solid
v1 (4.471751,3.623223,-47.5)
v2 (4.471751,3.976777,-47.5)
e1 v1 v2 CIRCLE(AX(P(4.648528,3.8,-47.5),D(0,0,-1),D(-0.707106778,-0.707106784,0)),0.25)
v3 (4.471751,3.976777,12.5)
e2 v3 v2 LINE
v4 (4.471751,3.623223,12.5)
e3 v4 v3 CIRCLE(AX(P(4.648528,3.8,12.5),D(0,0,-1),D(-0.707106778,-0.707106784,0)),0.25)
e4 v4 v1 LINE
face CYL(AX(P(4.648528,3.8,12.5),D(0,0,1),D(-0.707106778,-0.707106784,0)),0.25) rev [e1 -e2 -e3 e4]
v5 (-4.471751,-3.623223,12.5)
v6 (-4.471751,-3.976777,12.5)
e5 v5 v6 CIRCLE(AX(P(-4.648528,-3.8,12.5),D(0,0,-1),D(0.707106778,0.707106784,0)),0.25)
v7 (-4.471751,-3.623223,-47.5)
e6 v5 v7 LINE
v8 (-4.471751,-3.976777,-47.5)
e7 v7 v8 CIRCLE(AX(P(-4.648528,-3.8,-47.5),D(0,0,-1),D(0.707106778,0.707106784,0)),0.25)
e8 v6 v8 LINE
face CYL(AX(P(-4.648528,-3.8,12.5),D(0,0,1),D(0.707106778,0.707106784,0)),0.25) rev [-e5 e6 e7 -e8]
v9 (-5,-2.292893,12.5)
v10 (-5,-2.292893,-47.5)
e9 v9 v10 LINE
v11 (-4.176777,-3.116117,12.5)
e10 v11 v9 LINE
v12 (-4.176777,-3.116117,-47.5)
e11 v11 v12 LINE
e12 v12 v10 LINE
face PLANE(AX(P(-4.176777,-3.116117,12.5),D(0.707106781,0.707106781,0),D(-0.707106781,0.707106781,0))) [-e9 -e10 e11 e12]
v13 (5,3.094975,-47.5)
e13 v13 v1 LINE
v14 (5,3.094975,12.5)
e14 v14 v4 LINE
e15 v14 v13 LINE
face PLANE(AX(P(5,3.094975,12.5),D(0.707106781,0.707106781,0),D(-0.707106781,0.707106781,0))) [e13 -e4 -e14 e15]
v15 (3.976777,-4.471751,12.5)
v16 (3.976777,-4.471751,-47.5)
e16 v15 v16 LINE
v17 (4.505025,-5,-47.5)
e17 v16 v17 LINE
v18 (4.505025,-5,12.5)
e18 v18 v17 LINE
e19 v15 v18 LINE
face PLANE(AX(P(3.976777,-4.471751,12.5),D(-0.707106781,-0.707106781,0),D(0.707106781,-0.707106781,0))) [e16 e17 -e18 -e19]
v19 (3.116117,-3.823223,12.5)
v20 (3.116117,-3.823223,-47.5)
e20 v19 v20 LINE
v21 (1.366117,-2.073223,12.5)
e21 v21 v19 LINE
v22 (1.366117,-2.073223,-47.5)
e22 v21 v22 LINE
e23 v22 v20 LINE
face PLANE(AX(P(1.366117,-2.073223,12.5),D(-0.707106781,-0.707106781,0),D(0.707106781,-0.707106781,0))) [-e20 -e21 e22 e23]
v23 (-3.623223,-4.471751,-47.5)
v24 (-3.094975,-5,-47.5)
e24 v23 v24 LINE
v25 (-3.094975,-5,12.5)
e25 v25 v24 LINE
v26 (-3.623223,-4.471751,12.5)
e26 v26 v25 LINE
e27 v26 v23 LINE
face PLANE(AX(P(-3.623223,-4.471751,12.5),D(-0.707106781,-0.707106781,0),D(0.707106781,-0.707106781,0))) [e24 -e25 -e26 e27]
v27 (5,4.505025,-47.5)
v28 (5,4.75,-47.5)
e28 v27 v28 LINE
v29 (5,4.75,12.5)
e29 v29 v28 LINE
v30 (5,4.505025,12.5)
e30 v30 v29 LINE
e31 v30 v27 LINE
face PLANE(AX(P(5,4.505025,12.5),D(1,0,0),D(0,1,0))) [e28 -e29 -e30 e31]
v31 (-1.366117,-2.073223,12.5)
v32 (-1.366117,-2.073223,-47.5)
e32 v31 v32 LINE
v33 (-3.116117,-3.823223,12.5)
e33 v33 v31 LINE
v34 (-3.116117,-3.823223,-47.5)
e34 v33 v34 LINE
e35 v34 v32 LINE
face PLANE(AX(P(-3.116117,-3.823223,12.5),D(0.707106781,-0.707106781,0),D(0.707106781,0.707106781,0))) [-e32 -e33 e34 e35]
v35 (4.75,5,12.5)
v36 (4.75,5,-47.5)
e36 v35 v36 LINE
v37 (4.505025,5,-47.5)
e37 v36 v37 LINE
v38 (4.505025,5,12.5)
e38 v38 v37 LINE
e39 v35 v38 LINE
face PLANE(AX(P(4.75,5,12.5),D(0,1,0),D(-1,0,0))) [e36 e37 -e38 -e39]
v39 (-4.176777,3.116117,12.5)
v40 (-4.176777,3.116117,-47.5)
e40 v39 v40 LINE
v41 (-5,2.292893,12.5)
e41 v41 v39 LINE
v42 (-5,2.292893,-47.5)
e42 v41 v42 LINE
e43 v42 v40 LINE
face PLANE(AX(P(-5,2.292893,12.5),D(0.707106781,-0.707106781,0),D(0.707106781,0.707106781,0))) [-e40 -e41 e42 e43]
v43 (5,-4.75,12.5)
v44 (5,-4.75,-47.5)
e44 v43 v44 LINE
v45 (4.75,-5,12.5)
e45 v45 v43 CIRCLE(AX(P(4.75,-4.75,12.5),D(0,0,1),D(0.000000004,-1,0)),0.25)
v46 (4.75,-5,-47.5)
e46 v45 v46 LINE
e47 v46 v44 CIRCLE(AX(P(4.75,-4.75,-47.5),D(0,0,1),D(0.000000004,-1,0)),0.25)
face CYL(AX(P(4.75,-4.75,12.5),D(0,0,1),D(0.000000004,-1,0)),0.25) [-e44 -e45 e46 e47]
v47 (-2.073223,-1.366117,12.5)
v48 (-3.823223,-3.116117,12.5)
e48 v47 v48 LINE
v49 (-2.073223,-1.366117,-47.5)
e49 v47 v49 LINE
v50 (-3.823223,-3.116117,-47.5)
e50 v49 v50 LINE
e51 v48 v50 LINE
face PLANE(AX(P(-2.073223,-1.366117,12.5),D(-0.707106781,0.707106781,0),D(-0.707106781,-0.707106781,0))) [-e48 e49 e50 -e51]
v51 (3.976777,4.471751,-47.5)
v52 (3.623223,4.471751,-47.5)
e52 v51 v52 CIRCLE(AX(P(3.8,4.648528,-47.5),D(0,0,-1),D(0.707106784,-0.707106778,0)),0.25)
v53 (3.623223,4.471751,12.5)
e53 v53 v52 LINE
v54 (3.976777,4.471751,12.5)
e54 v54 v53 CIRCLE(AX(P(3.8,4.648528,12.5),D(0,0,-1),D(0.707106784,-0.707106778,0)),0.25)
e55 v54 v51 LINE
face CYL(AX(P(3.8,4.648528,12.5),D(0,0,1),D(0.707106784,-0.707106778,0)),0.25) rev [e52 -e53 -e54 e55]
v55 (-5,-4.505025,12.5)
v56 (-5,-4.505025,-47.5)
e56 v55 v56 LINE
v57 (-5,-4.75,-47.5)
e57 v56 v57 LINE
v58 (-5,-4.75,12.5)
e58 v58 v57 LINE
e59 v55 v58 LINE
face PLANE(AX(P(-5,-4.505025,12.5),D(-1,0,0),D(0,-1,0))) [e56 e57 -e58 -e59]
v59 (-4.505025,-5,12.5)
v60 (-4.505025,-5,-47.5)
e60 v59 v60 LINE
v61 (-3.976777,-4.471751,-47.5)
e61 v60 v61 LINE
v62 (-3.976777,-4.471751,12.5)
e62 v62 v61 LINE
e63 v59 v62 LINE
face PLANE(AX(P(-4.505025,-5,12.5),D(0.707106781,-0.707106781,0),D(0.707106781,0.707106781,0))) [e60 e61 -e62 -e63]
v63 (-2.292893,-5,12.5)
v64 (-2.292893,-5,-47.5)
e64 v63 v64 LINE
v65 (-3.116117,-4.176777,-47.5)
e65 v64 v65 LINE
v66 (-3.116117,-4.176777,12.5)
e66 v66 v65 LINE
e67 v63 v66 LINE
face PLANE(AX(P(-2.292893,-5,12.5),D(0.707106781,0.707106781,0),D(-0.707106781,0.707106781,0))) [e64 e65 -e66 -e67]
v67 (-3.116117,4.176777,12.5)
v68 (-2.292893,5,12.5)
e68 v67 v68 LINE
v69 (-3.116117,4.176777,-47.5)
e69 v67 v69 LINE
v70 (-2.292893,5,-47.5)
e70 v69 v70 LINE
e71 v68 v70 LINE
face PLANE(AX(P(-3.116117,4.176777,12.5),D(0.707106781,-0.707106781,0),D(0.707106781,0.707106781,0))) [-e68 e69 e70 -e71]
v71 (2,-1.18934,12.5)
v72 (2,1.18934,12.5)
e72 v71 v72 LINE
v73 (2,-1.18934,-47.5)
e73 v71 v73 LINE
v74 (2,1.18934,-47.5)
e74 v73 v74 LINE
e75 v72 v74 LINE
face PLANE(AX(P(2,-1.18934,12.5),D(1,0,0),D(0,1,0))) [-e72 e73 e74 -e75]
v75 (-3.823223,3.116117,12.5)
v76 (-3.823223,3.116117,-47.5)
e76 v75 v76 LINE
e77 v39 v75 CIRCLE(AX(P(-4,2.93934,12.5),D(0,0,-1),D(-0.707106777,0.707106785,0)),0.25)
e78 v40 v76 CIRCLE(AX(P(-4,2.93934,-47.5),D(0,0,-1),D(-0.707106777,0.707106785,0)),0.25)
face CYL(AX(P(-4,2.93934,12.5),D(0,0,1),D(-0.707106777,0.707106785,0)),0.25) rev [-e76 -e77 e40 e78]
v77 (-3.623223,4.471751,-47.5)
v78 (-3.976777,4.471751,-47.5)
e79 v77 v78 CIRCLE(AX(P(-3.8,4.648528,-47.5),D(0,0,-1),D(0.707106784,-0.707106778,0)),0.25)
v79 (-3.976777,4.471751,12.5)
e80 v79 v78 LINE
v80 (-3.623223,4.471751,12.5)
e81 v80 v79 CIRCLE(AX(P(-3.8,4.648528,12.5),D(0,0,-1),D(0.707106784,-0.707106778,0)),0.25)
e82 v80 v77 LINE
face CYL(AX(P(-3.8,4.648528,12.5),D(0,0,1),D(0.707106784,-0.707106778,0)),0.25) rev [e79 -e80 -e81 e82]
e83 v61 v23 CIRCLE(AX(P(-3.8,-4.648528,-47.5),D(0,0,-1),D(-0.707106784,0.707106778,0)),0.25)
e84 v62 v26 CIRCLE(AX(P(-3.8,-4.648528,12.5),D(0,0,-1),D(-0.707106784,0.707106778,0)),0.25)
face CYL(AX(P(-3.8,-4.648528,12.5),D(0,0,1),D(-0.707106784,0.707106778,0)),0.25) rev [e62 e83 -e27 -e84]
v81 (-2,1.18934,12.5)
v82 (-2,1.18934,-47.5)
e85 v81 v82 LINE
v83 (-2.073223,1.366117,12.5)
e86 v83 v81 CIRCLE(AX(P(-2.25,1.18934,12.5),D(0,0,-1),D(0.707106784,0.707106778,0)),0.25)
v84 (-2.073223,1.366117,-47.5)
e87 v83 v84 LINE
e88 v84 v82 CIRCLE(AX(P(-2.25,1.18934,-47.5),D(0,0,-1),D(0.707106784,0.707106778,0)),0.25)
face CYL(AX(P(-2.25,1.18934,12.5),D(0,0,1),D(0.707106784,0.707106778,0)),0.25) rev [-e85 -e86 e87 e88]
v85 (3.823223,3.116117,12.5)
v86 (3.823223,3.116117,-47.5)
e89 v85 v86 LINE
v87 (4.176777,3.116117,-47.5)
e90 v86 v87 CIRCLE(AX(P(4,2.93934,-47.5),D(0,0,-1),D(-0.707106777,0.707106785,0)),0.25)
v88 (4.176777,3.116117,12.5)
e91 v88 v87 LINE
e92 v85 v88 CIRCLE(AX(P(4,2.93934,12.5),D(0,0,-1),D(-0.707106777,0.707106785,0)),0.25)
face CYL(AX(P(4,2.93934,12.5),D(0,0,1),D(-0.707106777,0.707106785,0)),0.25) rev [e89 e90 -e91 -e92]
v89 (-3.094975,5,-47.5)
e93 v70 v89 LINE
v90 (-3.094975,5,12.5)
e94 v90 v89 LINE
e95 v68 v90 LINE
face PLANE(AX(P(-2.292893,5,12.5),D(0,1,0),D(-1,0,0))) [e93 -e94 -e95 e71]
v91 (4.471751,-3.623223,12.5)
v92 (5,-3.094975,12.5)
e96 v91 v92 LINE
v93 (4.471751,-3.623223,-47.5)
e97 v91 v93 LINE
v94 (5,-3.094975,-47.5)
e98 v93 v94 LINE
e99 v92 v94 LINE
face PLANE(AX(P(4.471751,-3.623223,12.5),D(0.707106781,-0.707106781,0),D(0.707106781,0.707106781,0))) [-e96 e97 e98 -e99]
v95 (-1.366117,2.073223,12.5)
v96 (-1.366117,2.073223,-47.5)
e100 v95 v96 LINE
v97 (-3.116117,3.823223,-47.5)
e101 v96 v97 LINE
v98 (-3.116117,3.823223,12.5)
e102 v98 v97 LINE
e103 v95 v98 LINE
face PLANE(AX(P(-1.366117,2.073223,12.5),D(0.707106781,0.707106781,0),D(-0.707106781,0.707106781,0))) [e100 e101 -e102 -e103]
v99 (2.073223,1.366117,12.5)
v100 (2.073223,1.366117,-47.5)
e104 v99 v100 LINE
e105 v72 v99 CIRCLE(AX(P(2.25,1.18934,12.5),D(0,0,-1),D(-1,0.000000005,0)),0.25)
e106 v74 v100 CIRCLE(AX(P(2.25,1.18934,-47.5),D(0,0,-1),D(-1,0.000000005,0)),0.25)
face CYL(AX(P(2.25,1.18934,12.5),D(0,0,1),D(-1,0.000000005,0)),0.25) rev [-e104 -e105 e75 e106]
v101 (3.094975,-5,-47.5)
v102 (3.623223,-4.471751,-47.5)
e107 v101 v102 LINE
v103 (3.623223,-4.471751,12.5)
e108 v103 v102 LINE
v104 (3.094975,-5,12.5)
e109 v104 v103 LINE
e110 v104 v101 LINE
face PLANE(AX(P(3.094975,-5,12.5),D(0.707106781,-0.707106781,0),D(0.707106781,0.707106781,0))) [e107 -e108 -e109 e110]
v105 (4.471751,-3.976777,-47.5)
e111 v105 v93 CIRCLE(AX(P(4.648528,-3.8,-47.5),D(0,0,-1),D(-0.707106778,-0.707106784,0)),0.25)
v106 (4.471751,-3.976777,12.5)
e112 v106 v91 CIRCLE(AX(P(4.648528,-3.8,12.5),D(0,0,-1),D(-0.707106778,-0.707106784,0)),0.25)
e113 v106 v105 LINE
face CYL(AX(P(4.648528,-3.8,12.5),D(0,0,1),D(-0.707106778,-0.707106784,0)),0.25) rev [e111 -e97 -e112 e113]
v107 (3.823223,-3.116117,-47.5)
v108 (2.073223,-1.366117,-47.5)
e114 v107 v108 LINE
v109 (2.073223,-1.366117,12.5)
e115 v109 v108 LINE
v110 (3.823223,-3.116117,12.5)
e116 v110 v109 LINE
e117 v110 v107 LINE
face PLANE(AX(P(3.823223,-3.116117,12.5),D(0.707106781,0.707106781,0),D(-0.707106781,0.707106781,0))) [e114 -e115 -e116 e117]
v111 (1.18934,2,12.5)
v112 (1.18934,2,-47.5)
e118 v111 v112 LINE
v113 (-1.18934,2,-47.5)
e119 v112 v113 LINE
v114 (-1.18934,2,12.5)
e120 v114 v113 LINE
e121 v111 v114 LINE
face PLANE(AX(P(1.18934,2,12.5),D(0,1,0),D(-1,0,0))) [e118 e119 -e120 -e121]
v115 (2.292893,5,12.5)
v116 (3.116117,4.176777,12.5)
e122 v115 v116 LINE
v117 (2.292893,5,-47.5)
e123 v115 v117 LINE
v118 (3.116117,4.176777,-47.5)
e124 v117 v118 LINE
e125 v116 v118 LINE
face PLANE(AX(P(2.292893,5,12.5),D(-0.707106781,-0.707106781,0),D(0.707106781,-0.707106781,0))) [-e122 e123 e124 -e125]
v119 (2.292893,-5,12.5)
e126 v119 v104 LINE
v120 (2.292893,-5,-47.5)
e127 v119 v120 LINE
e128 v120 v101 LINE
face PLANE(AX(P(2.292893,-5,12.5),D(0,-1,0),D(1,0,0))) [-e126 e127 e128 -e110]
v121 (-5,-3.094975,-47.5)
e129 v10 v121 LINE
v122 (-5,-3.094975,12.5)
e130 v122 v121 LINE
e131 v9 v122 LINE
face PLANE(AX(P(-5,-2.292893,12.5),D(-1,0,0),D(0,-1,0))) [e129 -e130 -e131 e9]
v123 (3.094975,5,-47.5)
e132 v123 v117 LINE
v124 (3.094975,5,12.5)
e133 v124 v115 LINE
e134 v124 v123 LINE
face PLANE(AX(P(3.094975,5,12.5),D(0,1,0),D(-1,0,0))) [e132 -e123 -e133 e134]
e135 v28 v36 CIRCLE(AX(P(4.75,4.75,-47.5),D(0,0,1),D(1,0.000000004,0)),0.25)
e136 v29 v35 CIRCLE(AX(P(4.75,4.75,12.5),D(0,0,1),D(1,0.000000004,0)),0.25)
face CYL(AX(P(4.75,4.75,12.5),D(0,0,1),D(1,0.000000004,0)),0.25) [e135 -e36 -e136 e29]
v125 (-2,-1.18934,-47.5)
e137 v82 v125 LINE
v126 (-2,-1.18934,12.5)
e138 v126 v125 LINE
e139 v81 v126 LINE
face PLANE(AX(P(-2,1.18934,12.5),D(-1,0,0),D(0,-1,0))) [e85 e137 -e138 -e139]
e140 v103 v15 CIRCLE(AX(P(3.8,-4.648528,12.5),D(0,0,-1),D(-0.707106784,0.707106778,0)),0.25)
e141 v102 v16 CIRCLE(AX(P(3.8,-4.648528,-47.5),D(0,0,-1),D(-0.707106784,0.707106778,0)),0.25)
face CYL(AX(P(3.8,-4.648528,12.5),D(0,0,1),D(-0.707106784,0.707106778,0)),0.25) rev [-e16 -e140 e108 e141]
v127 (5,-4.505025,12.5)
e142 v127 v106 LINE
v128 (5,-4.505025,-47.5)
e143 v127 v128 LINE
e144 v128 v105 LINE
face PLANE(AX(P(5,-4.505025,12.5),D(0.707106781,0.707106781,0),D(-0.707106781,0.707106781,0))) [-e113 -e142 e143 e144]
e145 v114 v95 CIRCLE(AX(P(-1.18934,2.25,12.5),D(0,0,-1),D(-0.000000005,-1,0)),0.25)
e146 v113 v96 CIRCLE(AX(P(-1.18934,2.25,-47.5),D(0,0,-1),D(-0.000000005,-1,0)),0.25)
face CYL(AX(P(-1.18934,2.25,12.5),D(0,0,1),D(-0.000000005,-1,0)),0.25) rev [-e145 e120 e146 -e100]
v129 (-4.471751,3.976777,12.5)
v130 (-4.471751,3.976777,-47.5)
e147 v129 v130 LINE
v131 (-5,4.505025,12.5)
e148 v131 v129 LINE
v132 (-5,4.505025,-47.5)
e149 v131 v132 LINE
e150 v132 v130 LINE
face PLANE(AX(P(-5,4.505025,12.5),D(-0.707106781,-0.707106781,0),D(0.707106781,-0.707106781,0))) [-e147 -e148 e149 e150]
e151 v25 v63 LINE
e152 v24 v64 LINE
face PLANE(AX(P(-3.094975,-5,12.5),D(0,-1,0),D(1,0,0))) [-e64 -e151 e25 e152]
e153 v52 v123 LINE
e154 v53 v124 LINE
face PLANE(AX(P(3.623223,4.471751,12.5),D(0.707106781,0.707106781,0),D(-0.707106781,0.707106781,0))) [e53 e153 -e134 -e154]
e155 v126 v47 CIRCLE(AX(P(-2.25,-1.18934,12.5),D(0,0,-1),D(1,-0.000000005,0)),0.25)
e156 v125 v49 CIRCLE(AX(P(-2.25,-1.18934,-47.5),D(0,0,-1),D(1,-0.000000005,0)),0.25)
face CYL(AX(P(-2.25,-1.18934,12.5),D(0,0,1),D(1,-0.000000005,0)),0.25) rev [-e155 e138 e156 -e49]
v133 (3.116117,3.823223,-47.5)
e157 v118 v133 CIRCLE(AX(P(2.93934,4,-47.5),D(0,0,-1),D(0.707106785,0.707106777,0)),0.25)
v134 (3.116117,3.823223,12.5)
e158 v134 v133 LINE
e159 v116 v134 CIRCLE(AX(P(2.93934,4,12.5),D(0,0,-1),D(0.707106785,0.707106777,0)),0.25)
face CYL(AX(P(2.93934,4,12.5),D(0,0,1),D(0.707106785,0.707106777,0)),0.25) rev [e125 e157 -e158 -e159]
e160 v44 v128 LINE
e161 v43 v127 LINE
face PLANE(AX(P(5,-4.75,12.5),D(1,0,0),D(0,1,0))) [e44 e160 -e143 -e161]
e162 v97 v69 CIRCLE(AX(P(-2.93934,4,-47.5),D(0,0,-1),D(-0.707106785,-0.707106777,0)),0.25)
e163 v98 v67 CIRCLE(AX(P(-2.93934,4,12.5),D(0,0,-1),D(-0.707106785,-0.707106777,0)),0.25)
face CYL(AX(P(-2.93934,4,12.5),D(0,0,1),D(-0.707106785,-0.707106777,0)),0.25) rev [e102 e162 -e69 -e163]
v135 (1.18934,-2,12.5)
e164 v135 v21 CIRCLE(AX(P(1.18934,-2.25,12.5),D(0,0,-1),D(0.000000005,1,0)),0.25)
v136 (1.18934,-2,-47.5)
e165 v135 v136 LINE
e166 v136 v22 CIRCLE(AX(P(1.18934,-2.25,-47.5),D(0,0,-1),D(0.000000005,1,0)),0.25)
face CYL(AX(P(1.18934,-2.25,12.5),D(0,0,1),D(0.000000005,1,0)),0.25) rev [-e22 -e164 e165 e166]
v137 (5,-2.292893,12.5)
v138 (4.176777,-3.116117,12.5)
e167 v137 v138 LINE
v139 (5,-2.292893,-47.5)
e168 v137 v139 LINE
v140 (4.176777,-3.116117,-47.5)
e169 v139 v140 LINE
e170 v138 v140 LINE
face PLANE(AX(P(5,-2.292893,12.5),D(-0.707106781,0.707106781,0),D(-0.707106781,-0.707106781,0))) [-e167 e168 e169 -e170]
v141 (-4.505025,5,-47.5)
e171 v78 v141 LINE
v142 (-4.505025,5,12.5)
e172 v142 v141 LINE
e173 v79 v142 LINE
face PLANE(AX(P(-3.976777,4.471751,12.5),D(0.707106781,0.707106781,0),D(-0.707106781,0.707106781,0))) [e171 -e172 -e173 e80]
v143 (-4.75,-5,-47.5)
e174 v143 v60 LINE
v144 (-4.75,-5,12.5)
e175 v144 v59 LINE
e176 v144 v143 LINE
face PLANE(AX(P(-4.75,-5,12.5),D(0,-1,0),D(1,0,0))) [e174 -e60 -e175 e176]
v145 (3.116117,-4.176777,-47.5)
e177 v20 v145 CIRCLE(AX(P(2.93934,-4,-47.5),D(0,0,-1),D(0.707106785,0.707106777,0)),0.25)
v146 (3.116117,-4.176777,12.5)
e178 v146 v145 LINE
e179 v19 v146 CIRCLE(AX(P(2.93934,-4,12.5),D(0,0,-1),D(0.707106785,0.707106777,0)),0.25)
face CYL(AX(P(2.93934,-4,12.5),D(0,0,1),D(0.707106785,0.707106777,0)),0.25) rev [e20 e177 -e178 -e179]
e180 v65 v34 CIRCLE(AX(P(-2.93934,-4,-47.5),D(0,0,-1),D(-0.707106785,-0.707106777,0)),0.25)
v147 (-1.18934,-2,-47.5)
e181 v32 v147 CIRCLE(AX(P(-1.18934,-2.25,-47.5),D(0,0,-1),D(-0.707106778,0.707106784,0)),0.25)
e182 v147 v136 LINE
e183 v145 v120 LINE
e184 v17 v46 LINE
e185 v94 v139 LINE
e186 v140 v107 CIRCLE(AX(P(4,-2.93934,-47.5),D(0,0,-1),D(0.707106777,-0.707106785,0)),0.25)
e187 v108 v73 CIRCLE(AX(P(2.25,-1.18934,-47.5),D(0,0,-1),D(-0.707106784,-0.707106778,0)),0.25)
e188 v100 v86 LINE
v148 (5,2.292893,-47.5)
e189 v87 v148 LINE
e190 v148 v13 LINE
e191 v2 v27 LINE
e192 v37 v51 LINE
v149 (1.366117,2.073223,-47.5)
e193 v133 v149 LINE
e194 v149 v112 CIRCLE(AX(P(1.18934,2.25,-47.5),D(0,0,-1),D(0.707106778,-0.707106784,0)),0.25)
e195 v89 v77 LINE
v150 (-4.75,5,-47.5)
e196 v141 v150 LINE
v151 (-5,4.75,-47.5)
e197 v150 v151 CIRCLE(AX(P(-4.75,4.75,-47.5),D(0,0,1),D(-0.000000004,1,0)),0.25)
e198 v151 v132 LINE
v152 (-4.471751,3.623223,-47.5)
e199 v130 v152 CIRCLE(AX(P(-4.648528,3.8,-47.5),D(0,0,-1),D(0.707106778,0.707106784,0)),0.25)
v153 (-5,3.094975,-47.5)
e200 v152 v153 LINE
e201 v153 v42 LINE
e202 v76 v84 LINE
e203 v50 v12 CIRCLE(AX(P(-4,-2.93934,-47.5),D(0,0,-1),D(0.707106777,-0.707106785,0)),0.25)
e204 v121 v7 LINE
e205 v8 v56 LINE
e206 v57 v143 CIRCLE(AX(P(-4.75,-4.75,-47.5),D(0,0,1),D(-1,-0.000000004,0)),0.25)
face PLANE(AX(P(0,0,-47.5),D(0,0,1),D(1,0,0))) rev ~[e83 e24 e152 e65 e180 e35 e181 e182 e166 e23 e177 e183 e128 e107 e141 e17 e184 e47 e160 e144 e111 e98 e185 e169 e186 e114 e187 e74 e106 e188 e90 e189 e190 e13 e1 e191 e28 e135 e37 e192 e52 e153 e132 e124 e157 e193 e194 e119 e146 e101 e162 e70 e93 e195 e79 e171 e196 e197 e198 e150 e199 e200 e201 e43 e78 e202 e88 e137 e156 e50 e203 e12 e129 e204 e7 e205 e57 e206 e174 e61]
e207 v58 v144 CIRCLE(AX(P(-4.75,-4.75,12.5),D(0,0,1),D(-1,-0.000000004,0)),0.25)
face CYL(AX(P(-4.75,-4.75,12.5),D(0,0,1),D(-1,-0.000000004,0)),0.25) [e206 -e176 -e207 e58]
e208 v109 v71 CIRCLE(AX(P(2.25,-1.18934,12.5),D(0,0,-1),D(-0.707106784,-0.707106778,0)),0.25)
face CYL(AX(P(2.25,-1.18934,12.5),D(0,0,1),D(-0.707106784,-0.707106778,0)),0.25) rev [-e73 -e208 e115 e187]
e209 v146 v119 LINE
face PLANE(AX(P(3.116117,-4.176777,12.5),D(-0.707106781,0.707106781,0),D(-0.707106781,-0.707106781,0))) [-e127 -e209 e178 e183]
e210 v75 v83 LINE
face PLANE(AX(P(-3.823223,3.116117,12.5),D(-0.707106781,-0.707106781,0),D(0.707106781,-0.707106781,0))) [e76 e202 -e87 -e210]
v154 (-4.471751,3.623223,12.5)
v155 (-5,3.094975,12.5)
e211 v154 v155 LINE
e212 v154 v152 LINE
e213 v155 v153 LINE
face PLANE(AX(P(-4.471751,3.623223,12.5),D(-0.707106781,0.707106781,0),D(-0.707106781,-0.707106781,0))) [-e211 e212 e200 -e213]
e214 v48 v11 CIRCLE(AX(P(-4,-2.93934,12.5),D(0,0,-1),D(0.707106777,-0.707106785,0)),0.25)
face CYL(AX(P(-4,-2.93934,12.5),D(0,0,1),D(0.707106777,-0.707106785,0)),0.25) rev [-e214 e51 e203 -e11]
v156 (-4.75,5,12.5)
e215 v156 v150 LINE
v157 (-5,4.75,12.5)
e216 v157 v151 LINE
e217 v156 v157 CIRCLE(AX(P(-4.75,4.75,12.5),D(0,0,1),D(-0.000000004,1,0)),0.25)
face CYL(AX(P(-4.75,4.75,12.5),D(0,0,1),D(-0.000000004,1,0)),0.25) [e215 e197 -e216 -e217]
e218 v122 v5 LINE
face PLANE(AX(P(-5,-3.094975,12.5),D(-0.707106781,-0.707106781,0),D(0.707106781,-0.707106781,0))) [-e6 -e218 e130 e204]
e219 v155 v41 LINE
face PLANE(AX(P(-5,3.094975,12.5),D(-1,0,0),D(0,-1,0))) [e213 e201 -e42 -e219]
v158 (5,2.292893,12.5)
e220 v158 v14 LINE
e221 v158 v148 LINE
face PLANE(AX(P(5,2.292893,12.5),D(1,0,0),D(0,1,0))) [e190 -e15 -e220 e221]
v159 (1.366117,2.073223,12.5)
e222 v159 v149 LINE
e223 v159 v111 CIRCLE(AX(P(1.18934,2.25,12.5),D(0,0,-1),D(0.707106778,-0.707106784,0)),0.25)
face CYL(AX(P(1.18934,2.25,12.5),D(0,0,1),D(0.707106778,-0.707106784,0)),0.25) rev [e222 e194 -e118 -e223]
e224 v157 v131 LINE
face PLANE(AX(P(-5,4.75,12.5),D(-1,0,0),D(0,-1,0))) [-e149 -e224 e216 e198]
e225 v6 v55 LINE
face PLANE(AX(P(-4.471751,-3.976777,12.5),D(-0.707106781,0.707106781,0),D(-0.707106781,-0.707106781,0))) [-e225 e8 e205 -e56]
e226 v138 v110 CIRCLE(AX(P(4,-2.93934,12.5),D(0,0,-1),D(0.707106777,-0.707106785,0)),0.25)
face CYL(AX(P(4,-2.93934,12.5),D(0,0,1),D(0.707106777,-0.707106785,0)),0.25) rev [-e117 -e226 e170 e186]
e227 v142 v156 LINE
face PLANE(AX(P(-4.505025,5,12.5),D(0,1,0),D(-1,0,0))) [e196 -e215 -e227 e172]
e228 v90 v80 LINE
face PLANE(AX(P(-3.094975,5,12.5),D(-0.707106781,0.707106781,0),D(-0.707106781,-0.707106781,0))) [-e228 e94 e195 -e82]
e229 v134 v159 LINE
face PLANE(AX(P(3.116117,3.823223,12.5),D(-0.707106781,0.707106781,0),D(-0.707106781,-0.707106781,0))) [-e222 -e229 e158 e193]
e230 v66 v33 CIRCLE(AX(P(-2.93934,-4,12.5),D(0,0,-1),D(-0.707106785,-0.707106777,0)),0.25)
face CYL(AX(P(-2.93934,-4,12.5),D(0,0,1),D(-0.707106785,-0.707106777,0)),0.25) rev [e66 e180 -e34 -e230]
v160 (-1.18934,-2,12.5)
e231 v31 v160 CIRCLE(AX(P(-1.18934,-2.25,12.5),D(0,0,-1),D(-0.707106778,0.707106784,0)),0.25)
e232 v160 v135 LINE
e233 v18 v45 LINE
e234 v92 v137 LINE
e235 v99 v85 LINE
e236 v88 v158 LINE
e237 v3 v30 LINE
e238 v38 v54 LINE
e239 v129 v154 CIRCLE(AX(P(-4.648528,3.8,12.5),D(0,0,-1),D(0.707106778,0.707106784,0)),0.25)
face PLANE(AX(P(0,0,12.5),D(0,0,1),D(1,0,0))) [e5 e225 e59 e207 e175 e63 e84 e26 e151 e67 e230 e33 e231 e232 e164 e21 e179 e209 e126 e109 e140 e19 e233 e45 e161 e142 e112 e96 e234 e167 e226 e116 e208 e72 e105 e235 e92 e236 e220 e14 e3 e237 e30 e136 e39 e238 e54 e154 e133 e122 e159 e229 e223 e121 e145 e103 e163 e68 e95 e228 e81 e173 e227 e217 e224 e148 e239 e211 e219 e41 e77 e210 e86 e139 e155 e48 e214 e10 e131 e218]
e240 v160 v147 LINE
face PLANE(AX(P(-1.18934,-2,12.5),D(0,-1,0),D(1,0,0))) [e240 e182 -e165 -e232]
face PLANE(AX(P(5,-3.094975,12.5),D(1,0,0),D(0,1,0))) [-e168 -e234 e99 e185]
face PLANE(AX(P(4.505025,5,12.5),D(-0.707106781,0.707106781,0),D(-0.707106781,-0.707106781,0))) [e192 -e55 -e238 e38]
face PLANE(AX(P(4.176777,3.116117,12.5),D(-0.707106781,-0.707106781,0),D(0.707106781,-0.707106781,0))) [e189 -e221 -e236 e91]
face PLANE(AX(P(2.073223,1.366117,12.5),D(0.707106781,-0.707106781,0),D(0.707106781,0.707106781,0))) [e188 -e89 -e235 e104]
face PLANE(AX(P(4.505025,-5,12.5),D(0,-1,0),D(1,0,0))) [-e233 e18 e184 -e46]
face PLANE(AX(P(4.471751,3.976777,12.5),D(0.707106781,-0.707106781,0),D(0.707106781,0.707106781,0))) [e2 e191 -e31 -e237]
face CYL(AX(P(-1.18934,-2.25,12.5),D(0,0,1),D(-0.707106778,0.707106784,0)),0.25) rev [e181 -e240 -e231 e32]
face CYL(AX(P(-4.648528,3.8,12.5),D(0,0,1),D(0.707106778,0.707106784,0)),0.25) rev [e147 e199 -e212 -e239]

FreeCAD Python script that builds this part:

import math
import FreeCAD as App
import Part
import Sketcher
from FreeCAD import Vector
Q = App.Units.Quantity

doc = App.newDocument("Part")
body = doc.addObject("PartDesign::Body", "Body")

sketch1 = doc.addObject("Sketcher::SketchObject", "Sketch")
body.addObject(sketch1)
sketch1.AttachmentSupport = (doc.XY_Plane, [""])
sketch1.MapMode = "FlatFace"
sketch1.AttachmentOffset = App.Placement(Vector(0, 0, 12.5), App.Rotation())
sketch1.addGeometry(Part.LineSegment(Vector(1.18934, 2, 0), Vector(-1.18934, 2, 0)), False)
sketch1.addGeometry(Part.ArcOfCircle(Part.Circle(Vector(-1.18934, 2.25, 0), Vector(0, 0, 1), 0.25), math.radians(-135), math.radians(-90)), False)
sketch1.addGeometry(Part.LineSegment(Vector(-1.366117, 2.073223, 0), Vector(-3.116117, 3.823223, 0)), False)
sketch1.addGeometry(Part.ArcOfCircle(Part.Circle(Vector(-2.93934, 4, 0), Vector(0, 0, 1), 0.25), math.radians(135), math.radians(225)), False)
sketch1.addGeometry(Part.LineSegment(Vector(-3.116117, 4.176777, 0), Vector(-2.292893, 5, 0)), False)
sketch1.addGeometry(Part.LineSegment(Vector(-2.292893, 5, 0), Vector(-3.094975, 5, 0)), False)
sketch1.addGeometry(Part.LineSegment(Vector(-3.094975, 5, 0), Vector(-3.623223, 4.471751, 0)), False)
sketch1.addGeometry(Part.ArcOfCircle(Part.Circle(Vector(-3.8, 4.648528, 0), Vector(0, 0, 1), 0.25), math.radians(-135), math.radians(-45)), False)
sketch1.addGeometry(Part.LineSegment(Vector(-3.976777, 4.471751, 0), Vector(-4.505025, 5, 0)), False)
sketch1.addGeometry(Part.LineSegment(Vector(-4.505025, 5, 0), Vector(-4.75, 5, 0)), False)
sketch1.addGeometry(Part.ArcOfCircle(Part.Circle(Vector(-4.75, 4.75, 0), Vector(0, 0, 1), 0.25), math.radians(90), math.radians(180)), False)
sketch1.addGeometry(Part.LineSegment(Vector(-5, 4.75, 0), Vector(-5, 4.505025, 0)), False)
sketch1.addGeometry(Part.LineSegment(Vector(-5, 4.505025, 0), Vector(-4.471751, 3.976777, 0)), False)
sketch1.addGeometry(Part.ArcOfCircle(Part.Circle(Vector(-4.648528, 3.8, 0), Vector(0, 0, 1), 0.25), math.radians(-45), math.radians(45)), False)
sketch1.addGeometry(Part.LineSegment(Vector(-4.471751, 3.623223, 0), Vector(-5, 3.094975, 0)), False)
sketch1.addGeometry(Part.LineSegment(Vector(-5, 3.094975, 0), Vector(-5, 2.292893, 0)), False)
sketch1.addGeometry(Part.LineSegment(Vector(-5, 2.292893, 0), Vector(-4.176777, 3.116117, 0)), False)
sketch1.addGeometry(Part.ArcOfCircle(Part.Circle(Vector(-4, 2.93934, 0), Vector(0, 0, 1), 0.25), math.radians(45), math.radians(135)), False)
sketch1.addGeometry(Part.LineSegment(Vector(-3.823223, 3.116117, 0), Vector(-2.073223, 1.366117, 0)), False)
sketch1.addGeometry(Part.ArcOfCircle(Part.Circle(Vector(-2.25, 1.18934, 0), Vector(0, 0, 1), 0.25), math.radians(0), math.radians(45)), False)
sketch1.addGeometry(Part.LineSegment(Vector(-2, 1.18934, 0), Vector(-2, -1.18934, 0)), False)
sketch1.addGeometry(Part.ArcOfCircle(Part.Circle(Vector(-2.25, -1.18934, 0), Vector(0, 0, 1), 0.25), math.radians(-45), math.radians(0)), False)
sketch1.addGeometry(Part.LineSegment(Vector(-2.073223, -1.366117, 0), Vector(-3.823223, -3.116117, 0)), False)
sketch1.addGeometry(Part.ArcOfCircle(Part.Circle(Vector(-4, -2.93934, 0), Vector(0, 0, 1), 0.25), math.radians(-135), math.radians(-45)), False)
sketch1.addGeometry(Part.LineSegment(Vector(-4.176777, -3.116117, 0), Vector(-5, -2.292893, 0)), False)
sketch1.addGeometry(Part.LineSegment(Vector(-5, -2.292893, 0), Vector(-5, -3.094975, 0)), False)
sketch1.addGeometry(Part.LineSegment(Vector(-5, -3.094975, 0), Vector(-4.471751, -3.623223, 0)), False)
sketch1.addGeometry(Part.ArcOfCircle(Part.Circle(Vector(-4.648528, -3.8, 0), Vector(0, 0, 1), 0.25), math.radians(-45), math.radians(45)), False)
sketch1.addGeometry(Part.LineSegment(Vector(-4.471751, -3.976777, 0), Vector(-5, -4.505025, 0)), False)
sketch1.addGeometry(Part.LineSegment(Vector(-5, -4.505025, 0), Vector(-5, -4.75, 0)), False)
sketch1.addGeometry(Part.ArcOfCircle(Part.Circle(Vector(-4.75, -4.75, 0), Vector(0, 0, 1), 0.25), math.radians(-180), math.radians(-90)), False)
sketch1.addGeometry(Part.LineSegment(Vector(-4.75, -5, 0), Vector(-4.505025, -5, 0)), False)
sketch1.addGeometry(Part.LineSegment(Vector(-4.505025, -5, 0), Vector(-3.976777, -4.471751, 0)), False)
sketch1.addGeometry(Part.ArcOfCircle(Part.Circle(Vector(-3.8, -4.648528, 0), Vector(0, 0, 1), 0.25), math.radians(45), math.radians(135)), False)
sketch1.addGeometry(Part.LineSegment(Vector(-3.623223, -4.471751, 0), Vector(-3.094975, -5, 0)), False)
sketch1.addGeometry(Part.LineSegment(Vector(-3.094975, -5, 0), Vector(-2.292893, -5, 0)), False)
sketch1.addGeometry(Part.LineSegment(Vector(-2.292893, -5, 0), Vector(-3.116117, -4.176777, 0)), False)
sketch1.addGeometry(Part.ArcOfCircle(Part.Circle(Vector(-2.93934, -4, 0), Vector(0, 0, 1), 0.25), math.radians(135), math.radians(225)), False)
sketch1.addGeometry(Part.LineSegment(Vector(-3.116117, -3.823223, 0), Vector(-1.366117, -2.073223, 0)), False)
sketch1.addGeometry(Part.ArcOfCircle(Part.Circle(Vector(-1.18934, -2.25, 0), Vector(0, 0, 1), 0.25), math.radians(90), math.radians(135)), False)
sketch1.addGeometry(Part.LineSegment(Vector(-1.18934, -2, 0), Vector(1.18934, -2, 0)), False)
sketch1.addGeometry(Part.ArcOfCircle(Part.Circle(Vector(1.18934, -2.25, 0), Vector(0, 0, 1), 0.25), math.radians(45), math.radians(90)), False)
sketch1.addGeometry(Part.LineSegment(Vector(1.366117, -2.073223, 0), Vector(3.116117, -3.823223, 0)), False)
sketch1.addGeometry(Part.ArcOfCircle(Part.Circle(Vector(2.93934, -4, 0), Vector(0, 0, 1), 0.25), math.radians(-45), math.radians(45)), False)
sketch1.addGeometry(Part.LineSegment(Vector(3.116117, -4.176777, 0), Vector(2.292893, -5, 0)), False)
sketch1.addGeometry(Part.LineSegment(Vector(2.292893, -5, 0), Vector(3.094975, -5, 0)), False)
sketch1.addGeometry(Part.LineSegment(Vector(3.094975, -5, 0), Vector(3.623223, -4.471751, 0)), False)
sketch1.addGeometry(Part.ArcOfCircle(Part.Circle(Vector(3.8, -4.648528, 0), Vector(0, 0, 1), 0.25), math.radians(45), math.radians(135)), False)
sketch1.addGeometry(Part.LineSegment(Vector(3.976777, -4.471751, 0), Vector(4.505025, -5, 0)), False)
sketch1.addGeometry(Part.LineSegment(Vector(4.505025, -5, 0), Vector(4.75, -5, 0)), False)
sketch1.addGeometry(Part.ArcOfCircle(Part.Circle(Vector(4.75, -4.75, 0), Vector(0, 0, 1), 0.25), math.radians(-90), math.radians(0)), False)
sketch1.addGeometry(Part.LineSegment(Vector(5, -4.75, 0), Vector(5, -4.505025, 0)), False)
sketch1.addGeometry(Part.LineSegment(Vector(5, -4.505025, 0), Vector(4.471751, -3.976777, 0)), False)
sketch1.addGeometry(Part.ArcOfCircle(Part.Circle(Vector(4.648528, -3.8, 0), Vector(0, 0, 1), 0.25), math.radians(135), math.radians(225)), False)
sketch1.addGeometry(Part.LineSegment(Vector(4.471751, -3.623223, 0), Vector(5, -3.094975, 0)), False)
sketch1.addGeometry(Part.LineSegment(Vector(5, -3.094975, 0), Vector(5, -2.292893, 0)), False)
sketch1.addGeometry(Part.LineSegment(Vector(5, -2.292893, 0), Vector(4.176777, -3.116117, 0)), False)
sketch1.addGeometry(Part.ArcOfCircle(Part.Circle(Vector(4, -2.93934, 0), Vector(0, 0, 1), 0.25), math.radians(-135), math.radians(-45)), False)
sketch1.addGeometry(Part.LineSegment(Vector(3.823223, -3.116117, 0), Vector(2.073223, -1.366117, 0)), False)
sketch1.addGeometry(Part.ArcOfCircle(Part.Circle(Vector(2.25, -1.18934, 0), Vector(0, 0, 1), 0.25), math.radians(-180), math.radians(-135)), False)
sketch1.addGeometry(Part.LineSegment(Vector(2, -1.18934, 0), Vector(2, 1.18934, 0)), False)
sketch1.addGeometry(Part.ArcOfCircle(Part.Circle(Vector(2.25, 1.18934, 0), Vector(0, 0, 1), 0.25), math.radians(135), math.radians(180)), False)
sketch1.addGeometry(Part.LineSegment(Vector(2.073223, 1.366117, 0), Vector(3.823223, 3.116117, 0)), False)
sketch1.addGeometry(Part.ArcOfCircle(Part.Circle(Vector(4, 2.93934, 0), Vector(0, 0, 1), 0.25), math.radians(45), math.radians(135)), False)
sketch1.addGeometry(Part.LineSegment(Vector(4.176777, 3.116117, 0), Vector(5, 2.292893, 0)), False)
sketch1.addGeometry(Part.LineSegment(Vector(5, 2.292893, 0), Vector(5, 3.094975, 0)), False)
sketch1.addGeometry(Part.LineSegment(Vector(5, 3.094975, 0), Vector(4.471751, 3.623223, 0)), False)
sketch1.addGeometry(Part.ArcOfCircle(Part.Circle(Vector(4.648528, 3.8, 0), Vector(0, 0, 1), 0.25), math.radians(135), math.radians(225)), False)
sketch1.addGeometry(Part.LineSegment(Vector(4.471751, 3.976777, 0), Vector(5, 4.505025, 0)), False)
sketch1.addGeometry(Part.LineSegment(Vector(5, 4.505025, 0), Vector(5, 4.75, 0)), False)
sketch1.addGeometry(Part.ArcOfCircle(Part.Circle(Vector(4.75, 4.75, 0), Vector(0, 0, 1), 0.25), math.radians(0), math.radians(90)), False)
sketch1.addGeometry(Part.LineSegment(Vector(4.75, 5, 0), Vector(4.505025, 5, 0)), False)
sketch1.addGeometry(Part.LineSegment(Vector(4.505025, 5, 0), Vector(3.976777, 4.471751, 0)), False)
sketch1.addGeometry(Part.ArcOfCircle(Part.Circle(Vector(3.8, 4.648528, 0), Vector(0, 0, 1), 0.25), math.radians(-135), math.radians(-45)), False)
sketch1.addGeometry(Part.LineSegment(Vector(3.623223, 4.471751, 0), Vector(3.094975, 5, 0)), False)
sketch1.addGeometry(Part.LineSegment(Vector(3.094975, 5, 0), Vector(2.292893, 5, 0)), False)
sketch1.addGeometry(Part.LineSegment(Vector(2.292893, 5, 0), Vector(3.116117, 4.176777, 0)), False)
sketch1.addGeometry(Part.ArcOfCircle(Part.Circle(Vector(2.93934, 4, 0), Vector(0, 0, 1), 0.25), math.radians(-45), math.radians(45)), False)
sketch1.addGeometry(Part.LineSegment(Vector(3.116117, 3.823223, 0), Vector(1.366117, 2.073223, 0)), False)
sketch1.addGeometry(Part.ArcOfCircle(Part.Circle(Vector(1.18934, 2.25, 0), Vector(0, 0, 1), 0.25), math.radians(-90), math.radians(-45)), False)
sketch1.addConstraint(Sketcher.Constraint("Tangent", 0, 2, 1, 2))
sketch1.addConstraint(Sketcher.Constraint("Tangent", 1, 1, 2, 1))
sketch1.addConstraint(Sketcher.Constraint("Tangent", 2, 2, 3, 2))
sketch1.addConstraint(Sketcher.Constraint("Tangent", 3, 1, 4, 1))
sketch1.addConstraint(Sketcher.Constraint("Coincident", 4, 2, 5, 1))
sketch1.addConstraint(Sketcher.Constraint("Coincident", 5, 2, 6, 1))
sketch1.addConstraint(Sketcher.Constraint("Tangent", 6, 2, 7, 2))
sketch1.addConstraint(Sketcher.Constraint("Tangent", 7, 1, 8, 1))
sketch1.addConstraint(Sketcher.Constraint("Coincident", 8, 2, 9, 1))
sketch1.addConstraint(Sketcher.Constraint("Tangent", 9, 2, 10, 1))
sketch1.addConstraint(Sketcher.Constraint("Tangent", 10, 2, 11, 1))
sketch1.addConstraint(Sketcher.Constraint("Coincident", 11, 2, 12, 1))
sketch1.addConstraint(Sketcher.Constraint("Tangent", 12, 2, 13, 2))
sketch1.addConstraint(Sketcher.Constraint("Tangent", 13, 1, 14, 1))
sketch1.addConstraint(Sketcher.Constraint("Coincident", 14, 2, 15, 1))
sketch1.addConstraint(Sketcher.Constraint("Coincident", 15, 2, 16, 1))
sketch1.addConstraint(Sketcher.Constraint("Tangent", 16, 2, 17, 2))
sketch1.addConstraint(Sketcher.Constraint("Tangent", 17, 1, 18, 1))
sketch1.addConstraint(Sketcher.Constraint("Tangent", 18, 2, 19, 2))
sketch1.addConstraint(Sketcher.Constraint("Tangent", 19, 1, 20, 1))
sketch1.addConstraint(Sketcher.Constraint("Tangent", 20, 2, 21, 2))
sketch1.addConstraint(Sketcher.Constraint("Tangent", 21, 1, 22, 1))
sketch1.addConstraint(Sketcher.Constraint("Tangent", 22, 2, 23, 2))
sketch1.addConstraint(Sketcher.Constraint("Tangent", 23, 1, 24, 1))
sketch1.addConstraint(Sketcher.Constraint("Coincident", 24, 2, 25, 1))
sketch1.addConstraint(Sketcher.Constraint("Coincident", 25, 2, 26, 1))
sketch1.addConstraint(Sketcher.Constraint("Tangent", 26, 2, 27, 2))
sketch1.addConstraint(Sketcher.Constraint("Tangent", 27, 1, 28, 1))
sketch1.addConstraint(Sketcher.Constraint("Coincident", 28, 2, 29, 1))
sketch1.addConstraint(Sketcher.Constraint("Tangent", 29, 2, 30, 1))
sketch1.addConstraint(Sketcher.Constraint("Tangent", 30, 2, 31, 1))
sketch1.addConstraint(Sketcher.Constraint("Coincident", 31, 2, 32, 1))
sketch1.addConstraint(Sketcher.Constraint("Tangent", 32, 2, 33, 2))
sketch1.addConstraint(Sketcher.Constraint("Tangent", 33, 1, 34, 1))
sketch1.addConstraint(Sketcher.Constraint("Coincident", 34, 2, 35, 1))
sketch1.addConstraint(Sketcher.Constraint("Coincident", 35, 2, 36, 1))
sketch1.addConstraint(Sketcher.Constraint("Tangent", 36, 2, 37, 2))
sketch1.addConstraint(Sketcher.Constraint("Tangent", 37, 1, 38, 1))
sketch1.addConstraint(Sketcher.Constraint("Tangent", 38, 2, 39, 2))
sketch1.addConstraint(Sketcher.Constraint("Tangent", 39, 1, 40, 1))
sketch1.addConstraint(Sketcher.Constraint("Tangent", 40, 2, 41, 2))
sketch1.addConstraint(Sketcher.Constraint("Tangent", 41, 1, 42, 1))
sketch1.addConstraint(Sketcher.Constraint("Tangent", 42, 2, 43, 2))
sketch1.addConstraint(Sketcher.Constraint("Tangent", 43, 1, 44, 1))
sketch1.addConstraint(Sketcher.Constraint("Coincident", 44, 2, 45, 1))
sketch1.addConstraint(Sketcher.Constraint("Coincident", 45, 2, 46, 1))
sketch1.addConstraint(Sketcher.Constraint("Tangent", 46, 2, 47, 2))
sketch1.addConstraint(Sketcher.Constraint("Tangent", 47, 1, 48, 1))
sketch1.addConstraint(Sketcher.Constraint("Coincident", 48, 2, 49, 1))
sketch1.addConstraint(Sketcher.Constraint("Tangent", 49, 2, 50, 1))
sketch1.addConstraint(Sketcher.Constraint("Tangent", 50, 2, 51, 1))
sketch1.addConstraint(Sketcher.Constraint("Coincident", 51, 2, 52, 1))
sketch1.addConstraint(Sketcher.Constraint("Tangent", 52, 2, 53, 2))
sketch1.addConstraint(Sketcher.Constraint("Tangent", 53, 1, 54, 1))
sketch1.addConstraint(Sketcher.Constraint("Coincident", 54, 2, 55, 1))
sketch1.addConstraint(Sketcher.Constraint("Coincident", 55, 2, 56, 1))
sketch1.addConstraint(Sketcher.Constraint("Tangent", 56, 2, 57, 2))
sketch1.addConstraint(Sketcher.Constraint("Tangent", 57, 1, 58, 1))
sketch1.addConstraint(Sketcher.Constraint("Tangent", 58, 2, 59, 2))
sketch1.addConstraint(Sketcher.Constraint("Tangent", 59, 1, 60, 1))
sketch1.addConstraint(Sketcher.Constraint("Tangent", 60, 2, 61, 2))
sketch1.addConstraint(Sketcher.Constraint("Tangent", 61, 1, 62, 1))
sketch1.addConstraint(Sketcher.Constraint("Tangent", 62, 2, 63, 2))
sketch1.addConstraint(Sketcher.Constraint("Tangent", 63, 1, 64, 1))
sketch1.addConstraint(Sketcher.Constraint("Coincident", 64, 2, 65, 1))
sketch1.addConstraint(Sketcher.Constraint("Coincident", 65, 2, 66, 1))
sketch1.addConstraint(Sketcher.Constraint("Tangent", 66, 2, 67, 2))
sketch1.addConstraint(Sketcher.Constraint("Tangent", 67, 1, 68, 1))
sketch1.addConstraint(Sketcher.Constraint("Coincident", 68, 2, 69, 1))
sketch1.addConstraint(Sketcher.Constraint("Tangent", 69, 2, 70, 1))
sketch1.addConstraint(Sketcher.Constraint("Tangent", 70, 2, 71, 1))
sketch1.addConstraint(Sketcher.Constraint("Coincident", 71, 2, 72, 1))
sketch1.addConstraint(Sketcher.Constraint("Tangent", 72, 2, 73, 2))
sketch1.addConstraint(Sketcher.Constraint("Tangent", 73, 1, 74, 1))
sketch1.addConstraint(Sketcher.Constraint("Coincident", 74, 2, 75, 1))
sketch1.addConstraint(Sketcher.Constraint("Coincident", 75, 2, 76, 1))
sketch1.addConstraint(Sketcher.Constraint("Tangent", 76, 2, 77, 2))
sketch1.addConstraint(Sketcher.Constraint("Tangent", 77, 1, 78, 1))
sketch1.addConstraint(Sketcher.Constraint("Tangent", 78, 2, 79, 2))
sketch1.addConstraint(Sketcher.Constraint("Tangent", 79, 1, 0, 1))
sketch1.addConstraint(Sketcher.Constraint("Horizontal", 0))
sketch1.addConstraint(Sketcher.Constraint("Horizontal", 5))
sketch1.addConstraint(Sketcher.Constraint("Horizontal", 9))
sketch1.addConstraint(Sketcher.Constraint("Vertical", 11))
sketch1.addConstraint(Sketcher.Constraint("Vertical", 15))
sketch1.addConstraint(Sketcher.Constraint("Vertical", 20))
sketch1.addConstraint(Sketcher.Constraint("Vertical", 25))
sketch1.addConstraint(Sketcher.Constraint("Vertical", 29))
sketch1.addConstraint(Sketcher.Constraint("Horizontal", 31))
sketch1.addConstraint(Sketcher.Constraint("Horizontal", 35))
sketch1.addConstraint(Sketcher.Constraint("Horizontal", 40))
sketch1.addConstraint(Sketcher.Constraint("Horizontal", 45))
sketch1.addConstraint(Sketcher.Constraint("Horizontal", 49))
sketch1.addConstraint(Sketcher.Constraint("Vertical", 51))
sketch1.addConstraint(Sketcher.Constraint("Vertical", 55))
sketch1.addConstraint(Sketcher.Constraint("Vertical", 60))
sketch1.addConstraint(Sketcher.Constraint("Vertical", 65))
sketch1.addConstraint(Sketcher.Constraint("Vertical", 69))
sketch1.addConstraint(Sketcher.Constraint("Horizontal", 71))
sketch1.addConstraint(Sketcher.Constraint("Horizontal", 75))
sketch1.addConstraint(Sketcher.Constraint("Equal", 1, 3))
sketch1.addConstraint(Sketcher.Constraint("Equal", 3, 7))
sketch1.addConstraint(Sketcher.Constraint("Equal", 7, 10))
sketch1.addConstraint(Sketcher.Constraint("Equal", 10, 13))
sketch1.addConstraint(Sketcher.Constraint("Equal", 13, 17))
sketch1.addConstraint(Sketcher.Constraint("Equal", 17, 19))
sketch1.addConstraint(Sketcher.Constraint("Equal", 19, 21))
sketch1.addConstraint(Sketcher.Constraint("Equal", 21, 23))
sketch1.addConstraint(Sketcher.Constraint("Equal", 23, 27))
sketch1.addConstraint(Sketcher.Constraint("Equal", 27, 30))
sketch1.addConstraint(Sketcher.Constraint("Equal", 30, 33))
sketch1.addConstraint(Sketcher.Constraint("Equal", 33, 37))
sketch1.addConstraint(Sketcher.Constraint("Equal", 37, 39))
sketch1.addConstraint(Sketcher.Constraint("Equal", 39, 41))
sketch1.addConstraint(Sketcher.Constraint("Equal", 41, 43))
sketch1.addConstraint(Sketcher.Constraint("Equal", 43, 47))
sketch1.addConstraint(Sketcher.Constraint("Equal", 47, 50))
sketch1.addConstraint(Sketcher.Constraint("Equal", 50, 53))
sketch1.addConstraint(Sketcher.Constraint("Equal", 53, 57))
sketch1.addConstraint(Sketcher.Constraint("Equal", 57, 59))
sketch1.addConstraint(Sketcher.Constraint("Equal", 59, 61))
sketch1.addConstraint(Sketcher.Constraint("Equal", 61, 63))
sketch1.addConstraint(Sketcher.Constraint("Equal", 63, 67))
sketch1.addConstraint(Sketcher.Constraint("Equal", 67, 70))
sketch1.addConstraint(Sketcher.Constraint("Equal", 70, 73))
sketch1.addConstraint(Sketcher.Constraint("Equal", 73, 77))
sketch1.addConstraint(Sketcher.Constraint("Equal", 77, 79))
sketch1.addConstraint(Sketcher.Constraint("Symmetric", 1, 3, 41, 3, -1, 1))
sketch1.addConstraint(Sketcher.Constraint("Symmetric", 3, 3, 43, 3, -1, 1))
sketch1.addConstraint(Sketcher.Constraint("Symmetric", 7, 3, 47, 3, -1, 1))
sketch1.addConstraint(Sketcher.Constraint("Symmetric", 10, 3, 50, 3, -1, 1))
sketch1.addConstraint(Sketcher.Constraint("Symmetric", 13, 3, 53, 3, -1, 1))
sketch1.addConstraint(Sketcher.Constraint("Symmetric", 17, 3, 57, 3, -1, 1))
sketch1.addConstraint(Sketcher.Constraint("Symmetric", 19, 3, 59, 3, -1, 1))
sketch1.addConstraint(Sketcher.Constraint("Symmetric", 23, 3, 63, 3, -1, 1))
sketch1.addConstraint(Sketcher.Constraint("Symmetric", 27, 3, 67, 3, -1, 1))
sketch1.addConstraint(Sketcher.Constraint("Symmetric", 30, 3, 70, 3, -1, 1))
sketch1.addConstraint(Sketcher.Constraint("Symmetric", 33, 3, 73, 3, -1, 1))
sketch1.addConstraint(Sketcher.Constraint("Symmetric", 37, 3, 77, 3, -1, 1))
sketch1.addConstraint(Sketcher.Constraint("Symmetric", 4, 2, 44, 2, -1, 1))
sketch1.addConstraint(Sketcher.Constraint("Symmetric", 14, 2, 54, 2, -1, 1))
sketch1.addConstraint(Sketcher.Constraint("Symmetric", 24, 2, 64, 2, -1, 1))
sketch1.addConstraint(Sketcher.Constraint("Symmetric", 34, 2, 74, 2, -1, 1))
sketch1.addConstraint(Sketcher.Constraint("Symmetric", 37, 3, 43, 3, -2))
sketch1.addConstraint(Sketcher.Constraint("Symmetric", 33, 3, 47, 3, -2))
sketch1.addConstraint(Sketcher.Constraint("Symmetric", 30, 3, 50, 3, -2))
sketch1.addConstraint(Sketcher.Constraint("Symmetric", 27, 3, 53, 3, -2))
sketch1.addConstraint(Sketcher.Constraint("Symmetric", 23, 3, 57, 3, -2))
sketch1.addConstraint(Sketcher.Constraint("Symmetric", 35, 2, 44, 2, -2))
sketch1.addConstraint(Sketcher.Constraint("Symmetric", 25, 2, 54, 2, -2))
sketch1.addConstraint(Sketcher.Constraint("Perpendicular", 2, 4))
sketch1.addConstraint(Sketcher.Constraint("Parallel", 4, 6))
sketch1.addConstraint(Sketcher.Constraint("Perpendicular", 6, 8))
sketch1.addConstraint(Sketcher.Constraint("Parallel", 8, 12))
sketch1.addConstraint(Sketcher.Constraint("Perpendicular", 12, 14))
sketch1.addConstraint(Sketcher.Constraint("Parallel", 14, 16))
sketch1.addConstraint(Sketcher.Constraint("Perpendicular", 16, 18))
sketch1.addConstraint(Sketcher.Constraint("Perpendicular", 18, 22))
sketch1.addConstraint(Sketcher.Constraint("Perpendicular", 22, 24))
sketch1.addConstraint(Sketcher.Constraint("Parallel", 24, 26))
sketch1.addConstraint(Sketcher.Constraint("Perpendicular", 26, 28))
sketch1.addConstraint(Sketcher.Constraint("Parallel", 28, 32))
sketch1.addConstraint(Sketcher.Constraint("Perpendicular", 32, 34))
sketch1.addConstraint(Sketcher.Constraint("Perpendicular", 36, 38))
sketch1.addConstraint(Sketcher.Constraint("Parallel", 44, 46))
sketch1.addConstraint(Sketcher.Constraint("Perpendicular", 46, 48))
sketch1.addConstraint(Sketcher.Constraint("Parallel", 48, 52))
sketch1.addConstraint(Sketcher.Constraint("Parallel", 54, 56))
sketch1.addConstraint(Sketcher.Constraint("Perpendicular", 58, 62))
sketch1.addConstraint(Sketcher.Constraint("Parallel", 64, 66))
sketch1.addConstraint(Sketcher.Constraint("Perpendicular", 66, 68))
sketch1.addConstraint(Sketcher.Constraint("Parallel", 68, 72))
sketch1.addConstraint(Sketcher.Constraint("Parallel", 74, 76))
sketch1.addConstraint(Sketcher.Constraint("Perpendicular", 76, 78))
sketch1.addConstraint(Sketcher.Constraint("Horizontal", 5, 2, 8, 2))
sketch1.addConstraint(Sketcher.Constraint("Vertical", 11, 2, 14, 2))
sketch1.addConstraint(Sketcher.Constraint("Equal", 71, 11))
sketch1.addConstraint(Sketcher.Constraint("Equal", 75, 15))
sketch1.addConstraint(Sketcher.Constraint("Equal", 40, 20))
sketch1.addConstraint(Sketcher.Constraint("Equal", 8, 12))
sketch1.addConstraint(Sketcher.Constraint("Equal", 4, 16))
sketch1.addConstraint(Sketcher.Constraint("Equal", 2, 18))
sketch1.addConstraint(Sketcher.Constraint("Radius", 1, Q("0.25 mm")))
sketch1.addConstraint(Sketcher.Constraint("DistanceY", -1, 1, 3, 3, Q("4 mm")))
sketch1.addConstraint(Sketcher.Constraint("DistanceY", -1, 1, 0, 2, Q("2 mm")))
sketch1.addConstraint(Sketcher.Constraint("DistanceY", -1, 1, 4, 2, Q("5 mm")))
sketch1.addConstraint(Sketcher.Constraint("DistanceX", 7, 3, -1, 1, Q("3.8 mm")))
sketch1.addConstraint(Sketcher.Constraint("DistanceX", 0, 2, 0, 1, Q("2.37868 mm")))
sketch1.addConstraint(Sketcher.Constraint("DistanceX", 5, 2, 5, 1, Q("0.802082 mm")))
pad1 = doc.addObject("PartDesign::Pad", "Pad")
body.addObject(pad1)
pad1.Profile = sketch1
pad1.Length = 60
pad1.Reversed = True

doc.recompute()
